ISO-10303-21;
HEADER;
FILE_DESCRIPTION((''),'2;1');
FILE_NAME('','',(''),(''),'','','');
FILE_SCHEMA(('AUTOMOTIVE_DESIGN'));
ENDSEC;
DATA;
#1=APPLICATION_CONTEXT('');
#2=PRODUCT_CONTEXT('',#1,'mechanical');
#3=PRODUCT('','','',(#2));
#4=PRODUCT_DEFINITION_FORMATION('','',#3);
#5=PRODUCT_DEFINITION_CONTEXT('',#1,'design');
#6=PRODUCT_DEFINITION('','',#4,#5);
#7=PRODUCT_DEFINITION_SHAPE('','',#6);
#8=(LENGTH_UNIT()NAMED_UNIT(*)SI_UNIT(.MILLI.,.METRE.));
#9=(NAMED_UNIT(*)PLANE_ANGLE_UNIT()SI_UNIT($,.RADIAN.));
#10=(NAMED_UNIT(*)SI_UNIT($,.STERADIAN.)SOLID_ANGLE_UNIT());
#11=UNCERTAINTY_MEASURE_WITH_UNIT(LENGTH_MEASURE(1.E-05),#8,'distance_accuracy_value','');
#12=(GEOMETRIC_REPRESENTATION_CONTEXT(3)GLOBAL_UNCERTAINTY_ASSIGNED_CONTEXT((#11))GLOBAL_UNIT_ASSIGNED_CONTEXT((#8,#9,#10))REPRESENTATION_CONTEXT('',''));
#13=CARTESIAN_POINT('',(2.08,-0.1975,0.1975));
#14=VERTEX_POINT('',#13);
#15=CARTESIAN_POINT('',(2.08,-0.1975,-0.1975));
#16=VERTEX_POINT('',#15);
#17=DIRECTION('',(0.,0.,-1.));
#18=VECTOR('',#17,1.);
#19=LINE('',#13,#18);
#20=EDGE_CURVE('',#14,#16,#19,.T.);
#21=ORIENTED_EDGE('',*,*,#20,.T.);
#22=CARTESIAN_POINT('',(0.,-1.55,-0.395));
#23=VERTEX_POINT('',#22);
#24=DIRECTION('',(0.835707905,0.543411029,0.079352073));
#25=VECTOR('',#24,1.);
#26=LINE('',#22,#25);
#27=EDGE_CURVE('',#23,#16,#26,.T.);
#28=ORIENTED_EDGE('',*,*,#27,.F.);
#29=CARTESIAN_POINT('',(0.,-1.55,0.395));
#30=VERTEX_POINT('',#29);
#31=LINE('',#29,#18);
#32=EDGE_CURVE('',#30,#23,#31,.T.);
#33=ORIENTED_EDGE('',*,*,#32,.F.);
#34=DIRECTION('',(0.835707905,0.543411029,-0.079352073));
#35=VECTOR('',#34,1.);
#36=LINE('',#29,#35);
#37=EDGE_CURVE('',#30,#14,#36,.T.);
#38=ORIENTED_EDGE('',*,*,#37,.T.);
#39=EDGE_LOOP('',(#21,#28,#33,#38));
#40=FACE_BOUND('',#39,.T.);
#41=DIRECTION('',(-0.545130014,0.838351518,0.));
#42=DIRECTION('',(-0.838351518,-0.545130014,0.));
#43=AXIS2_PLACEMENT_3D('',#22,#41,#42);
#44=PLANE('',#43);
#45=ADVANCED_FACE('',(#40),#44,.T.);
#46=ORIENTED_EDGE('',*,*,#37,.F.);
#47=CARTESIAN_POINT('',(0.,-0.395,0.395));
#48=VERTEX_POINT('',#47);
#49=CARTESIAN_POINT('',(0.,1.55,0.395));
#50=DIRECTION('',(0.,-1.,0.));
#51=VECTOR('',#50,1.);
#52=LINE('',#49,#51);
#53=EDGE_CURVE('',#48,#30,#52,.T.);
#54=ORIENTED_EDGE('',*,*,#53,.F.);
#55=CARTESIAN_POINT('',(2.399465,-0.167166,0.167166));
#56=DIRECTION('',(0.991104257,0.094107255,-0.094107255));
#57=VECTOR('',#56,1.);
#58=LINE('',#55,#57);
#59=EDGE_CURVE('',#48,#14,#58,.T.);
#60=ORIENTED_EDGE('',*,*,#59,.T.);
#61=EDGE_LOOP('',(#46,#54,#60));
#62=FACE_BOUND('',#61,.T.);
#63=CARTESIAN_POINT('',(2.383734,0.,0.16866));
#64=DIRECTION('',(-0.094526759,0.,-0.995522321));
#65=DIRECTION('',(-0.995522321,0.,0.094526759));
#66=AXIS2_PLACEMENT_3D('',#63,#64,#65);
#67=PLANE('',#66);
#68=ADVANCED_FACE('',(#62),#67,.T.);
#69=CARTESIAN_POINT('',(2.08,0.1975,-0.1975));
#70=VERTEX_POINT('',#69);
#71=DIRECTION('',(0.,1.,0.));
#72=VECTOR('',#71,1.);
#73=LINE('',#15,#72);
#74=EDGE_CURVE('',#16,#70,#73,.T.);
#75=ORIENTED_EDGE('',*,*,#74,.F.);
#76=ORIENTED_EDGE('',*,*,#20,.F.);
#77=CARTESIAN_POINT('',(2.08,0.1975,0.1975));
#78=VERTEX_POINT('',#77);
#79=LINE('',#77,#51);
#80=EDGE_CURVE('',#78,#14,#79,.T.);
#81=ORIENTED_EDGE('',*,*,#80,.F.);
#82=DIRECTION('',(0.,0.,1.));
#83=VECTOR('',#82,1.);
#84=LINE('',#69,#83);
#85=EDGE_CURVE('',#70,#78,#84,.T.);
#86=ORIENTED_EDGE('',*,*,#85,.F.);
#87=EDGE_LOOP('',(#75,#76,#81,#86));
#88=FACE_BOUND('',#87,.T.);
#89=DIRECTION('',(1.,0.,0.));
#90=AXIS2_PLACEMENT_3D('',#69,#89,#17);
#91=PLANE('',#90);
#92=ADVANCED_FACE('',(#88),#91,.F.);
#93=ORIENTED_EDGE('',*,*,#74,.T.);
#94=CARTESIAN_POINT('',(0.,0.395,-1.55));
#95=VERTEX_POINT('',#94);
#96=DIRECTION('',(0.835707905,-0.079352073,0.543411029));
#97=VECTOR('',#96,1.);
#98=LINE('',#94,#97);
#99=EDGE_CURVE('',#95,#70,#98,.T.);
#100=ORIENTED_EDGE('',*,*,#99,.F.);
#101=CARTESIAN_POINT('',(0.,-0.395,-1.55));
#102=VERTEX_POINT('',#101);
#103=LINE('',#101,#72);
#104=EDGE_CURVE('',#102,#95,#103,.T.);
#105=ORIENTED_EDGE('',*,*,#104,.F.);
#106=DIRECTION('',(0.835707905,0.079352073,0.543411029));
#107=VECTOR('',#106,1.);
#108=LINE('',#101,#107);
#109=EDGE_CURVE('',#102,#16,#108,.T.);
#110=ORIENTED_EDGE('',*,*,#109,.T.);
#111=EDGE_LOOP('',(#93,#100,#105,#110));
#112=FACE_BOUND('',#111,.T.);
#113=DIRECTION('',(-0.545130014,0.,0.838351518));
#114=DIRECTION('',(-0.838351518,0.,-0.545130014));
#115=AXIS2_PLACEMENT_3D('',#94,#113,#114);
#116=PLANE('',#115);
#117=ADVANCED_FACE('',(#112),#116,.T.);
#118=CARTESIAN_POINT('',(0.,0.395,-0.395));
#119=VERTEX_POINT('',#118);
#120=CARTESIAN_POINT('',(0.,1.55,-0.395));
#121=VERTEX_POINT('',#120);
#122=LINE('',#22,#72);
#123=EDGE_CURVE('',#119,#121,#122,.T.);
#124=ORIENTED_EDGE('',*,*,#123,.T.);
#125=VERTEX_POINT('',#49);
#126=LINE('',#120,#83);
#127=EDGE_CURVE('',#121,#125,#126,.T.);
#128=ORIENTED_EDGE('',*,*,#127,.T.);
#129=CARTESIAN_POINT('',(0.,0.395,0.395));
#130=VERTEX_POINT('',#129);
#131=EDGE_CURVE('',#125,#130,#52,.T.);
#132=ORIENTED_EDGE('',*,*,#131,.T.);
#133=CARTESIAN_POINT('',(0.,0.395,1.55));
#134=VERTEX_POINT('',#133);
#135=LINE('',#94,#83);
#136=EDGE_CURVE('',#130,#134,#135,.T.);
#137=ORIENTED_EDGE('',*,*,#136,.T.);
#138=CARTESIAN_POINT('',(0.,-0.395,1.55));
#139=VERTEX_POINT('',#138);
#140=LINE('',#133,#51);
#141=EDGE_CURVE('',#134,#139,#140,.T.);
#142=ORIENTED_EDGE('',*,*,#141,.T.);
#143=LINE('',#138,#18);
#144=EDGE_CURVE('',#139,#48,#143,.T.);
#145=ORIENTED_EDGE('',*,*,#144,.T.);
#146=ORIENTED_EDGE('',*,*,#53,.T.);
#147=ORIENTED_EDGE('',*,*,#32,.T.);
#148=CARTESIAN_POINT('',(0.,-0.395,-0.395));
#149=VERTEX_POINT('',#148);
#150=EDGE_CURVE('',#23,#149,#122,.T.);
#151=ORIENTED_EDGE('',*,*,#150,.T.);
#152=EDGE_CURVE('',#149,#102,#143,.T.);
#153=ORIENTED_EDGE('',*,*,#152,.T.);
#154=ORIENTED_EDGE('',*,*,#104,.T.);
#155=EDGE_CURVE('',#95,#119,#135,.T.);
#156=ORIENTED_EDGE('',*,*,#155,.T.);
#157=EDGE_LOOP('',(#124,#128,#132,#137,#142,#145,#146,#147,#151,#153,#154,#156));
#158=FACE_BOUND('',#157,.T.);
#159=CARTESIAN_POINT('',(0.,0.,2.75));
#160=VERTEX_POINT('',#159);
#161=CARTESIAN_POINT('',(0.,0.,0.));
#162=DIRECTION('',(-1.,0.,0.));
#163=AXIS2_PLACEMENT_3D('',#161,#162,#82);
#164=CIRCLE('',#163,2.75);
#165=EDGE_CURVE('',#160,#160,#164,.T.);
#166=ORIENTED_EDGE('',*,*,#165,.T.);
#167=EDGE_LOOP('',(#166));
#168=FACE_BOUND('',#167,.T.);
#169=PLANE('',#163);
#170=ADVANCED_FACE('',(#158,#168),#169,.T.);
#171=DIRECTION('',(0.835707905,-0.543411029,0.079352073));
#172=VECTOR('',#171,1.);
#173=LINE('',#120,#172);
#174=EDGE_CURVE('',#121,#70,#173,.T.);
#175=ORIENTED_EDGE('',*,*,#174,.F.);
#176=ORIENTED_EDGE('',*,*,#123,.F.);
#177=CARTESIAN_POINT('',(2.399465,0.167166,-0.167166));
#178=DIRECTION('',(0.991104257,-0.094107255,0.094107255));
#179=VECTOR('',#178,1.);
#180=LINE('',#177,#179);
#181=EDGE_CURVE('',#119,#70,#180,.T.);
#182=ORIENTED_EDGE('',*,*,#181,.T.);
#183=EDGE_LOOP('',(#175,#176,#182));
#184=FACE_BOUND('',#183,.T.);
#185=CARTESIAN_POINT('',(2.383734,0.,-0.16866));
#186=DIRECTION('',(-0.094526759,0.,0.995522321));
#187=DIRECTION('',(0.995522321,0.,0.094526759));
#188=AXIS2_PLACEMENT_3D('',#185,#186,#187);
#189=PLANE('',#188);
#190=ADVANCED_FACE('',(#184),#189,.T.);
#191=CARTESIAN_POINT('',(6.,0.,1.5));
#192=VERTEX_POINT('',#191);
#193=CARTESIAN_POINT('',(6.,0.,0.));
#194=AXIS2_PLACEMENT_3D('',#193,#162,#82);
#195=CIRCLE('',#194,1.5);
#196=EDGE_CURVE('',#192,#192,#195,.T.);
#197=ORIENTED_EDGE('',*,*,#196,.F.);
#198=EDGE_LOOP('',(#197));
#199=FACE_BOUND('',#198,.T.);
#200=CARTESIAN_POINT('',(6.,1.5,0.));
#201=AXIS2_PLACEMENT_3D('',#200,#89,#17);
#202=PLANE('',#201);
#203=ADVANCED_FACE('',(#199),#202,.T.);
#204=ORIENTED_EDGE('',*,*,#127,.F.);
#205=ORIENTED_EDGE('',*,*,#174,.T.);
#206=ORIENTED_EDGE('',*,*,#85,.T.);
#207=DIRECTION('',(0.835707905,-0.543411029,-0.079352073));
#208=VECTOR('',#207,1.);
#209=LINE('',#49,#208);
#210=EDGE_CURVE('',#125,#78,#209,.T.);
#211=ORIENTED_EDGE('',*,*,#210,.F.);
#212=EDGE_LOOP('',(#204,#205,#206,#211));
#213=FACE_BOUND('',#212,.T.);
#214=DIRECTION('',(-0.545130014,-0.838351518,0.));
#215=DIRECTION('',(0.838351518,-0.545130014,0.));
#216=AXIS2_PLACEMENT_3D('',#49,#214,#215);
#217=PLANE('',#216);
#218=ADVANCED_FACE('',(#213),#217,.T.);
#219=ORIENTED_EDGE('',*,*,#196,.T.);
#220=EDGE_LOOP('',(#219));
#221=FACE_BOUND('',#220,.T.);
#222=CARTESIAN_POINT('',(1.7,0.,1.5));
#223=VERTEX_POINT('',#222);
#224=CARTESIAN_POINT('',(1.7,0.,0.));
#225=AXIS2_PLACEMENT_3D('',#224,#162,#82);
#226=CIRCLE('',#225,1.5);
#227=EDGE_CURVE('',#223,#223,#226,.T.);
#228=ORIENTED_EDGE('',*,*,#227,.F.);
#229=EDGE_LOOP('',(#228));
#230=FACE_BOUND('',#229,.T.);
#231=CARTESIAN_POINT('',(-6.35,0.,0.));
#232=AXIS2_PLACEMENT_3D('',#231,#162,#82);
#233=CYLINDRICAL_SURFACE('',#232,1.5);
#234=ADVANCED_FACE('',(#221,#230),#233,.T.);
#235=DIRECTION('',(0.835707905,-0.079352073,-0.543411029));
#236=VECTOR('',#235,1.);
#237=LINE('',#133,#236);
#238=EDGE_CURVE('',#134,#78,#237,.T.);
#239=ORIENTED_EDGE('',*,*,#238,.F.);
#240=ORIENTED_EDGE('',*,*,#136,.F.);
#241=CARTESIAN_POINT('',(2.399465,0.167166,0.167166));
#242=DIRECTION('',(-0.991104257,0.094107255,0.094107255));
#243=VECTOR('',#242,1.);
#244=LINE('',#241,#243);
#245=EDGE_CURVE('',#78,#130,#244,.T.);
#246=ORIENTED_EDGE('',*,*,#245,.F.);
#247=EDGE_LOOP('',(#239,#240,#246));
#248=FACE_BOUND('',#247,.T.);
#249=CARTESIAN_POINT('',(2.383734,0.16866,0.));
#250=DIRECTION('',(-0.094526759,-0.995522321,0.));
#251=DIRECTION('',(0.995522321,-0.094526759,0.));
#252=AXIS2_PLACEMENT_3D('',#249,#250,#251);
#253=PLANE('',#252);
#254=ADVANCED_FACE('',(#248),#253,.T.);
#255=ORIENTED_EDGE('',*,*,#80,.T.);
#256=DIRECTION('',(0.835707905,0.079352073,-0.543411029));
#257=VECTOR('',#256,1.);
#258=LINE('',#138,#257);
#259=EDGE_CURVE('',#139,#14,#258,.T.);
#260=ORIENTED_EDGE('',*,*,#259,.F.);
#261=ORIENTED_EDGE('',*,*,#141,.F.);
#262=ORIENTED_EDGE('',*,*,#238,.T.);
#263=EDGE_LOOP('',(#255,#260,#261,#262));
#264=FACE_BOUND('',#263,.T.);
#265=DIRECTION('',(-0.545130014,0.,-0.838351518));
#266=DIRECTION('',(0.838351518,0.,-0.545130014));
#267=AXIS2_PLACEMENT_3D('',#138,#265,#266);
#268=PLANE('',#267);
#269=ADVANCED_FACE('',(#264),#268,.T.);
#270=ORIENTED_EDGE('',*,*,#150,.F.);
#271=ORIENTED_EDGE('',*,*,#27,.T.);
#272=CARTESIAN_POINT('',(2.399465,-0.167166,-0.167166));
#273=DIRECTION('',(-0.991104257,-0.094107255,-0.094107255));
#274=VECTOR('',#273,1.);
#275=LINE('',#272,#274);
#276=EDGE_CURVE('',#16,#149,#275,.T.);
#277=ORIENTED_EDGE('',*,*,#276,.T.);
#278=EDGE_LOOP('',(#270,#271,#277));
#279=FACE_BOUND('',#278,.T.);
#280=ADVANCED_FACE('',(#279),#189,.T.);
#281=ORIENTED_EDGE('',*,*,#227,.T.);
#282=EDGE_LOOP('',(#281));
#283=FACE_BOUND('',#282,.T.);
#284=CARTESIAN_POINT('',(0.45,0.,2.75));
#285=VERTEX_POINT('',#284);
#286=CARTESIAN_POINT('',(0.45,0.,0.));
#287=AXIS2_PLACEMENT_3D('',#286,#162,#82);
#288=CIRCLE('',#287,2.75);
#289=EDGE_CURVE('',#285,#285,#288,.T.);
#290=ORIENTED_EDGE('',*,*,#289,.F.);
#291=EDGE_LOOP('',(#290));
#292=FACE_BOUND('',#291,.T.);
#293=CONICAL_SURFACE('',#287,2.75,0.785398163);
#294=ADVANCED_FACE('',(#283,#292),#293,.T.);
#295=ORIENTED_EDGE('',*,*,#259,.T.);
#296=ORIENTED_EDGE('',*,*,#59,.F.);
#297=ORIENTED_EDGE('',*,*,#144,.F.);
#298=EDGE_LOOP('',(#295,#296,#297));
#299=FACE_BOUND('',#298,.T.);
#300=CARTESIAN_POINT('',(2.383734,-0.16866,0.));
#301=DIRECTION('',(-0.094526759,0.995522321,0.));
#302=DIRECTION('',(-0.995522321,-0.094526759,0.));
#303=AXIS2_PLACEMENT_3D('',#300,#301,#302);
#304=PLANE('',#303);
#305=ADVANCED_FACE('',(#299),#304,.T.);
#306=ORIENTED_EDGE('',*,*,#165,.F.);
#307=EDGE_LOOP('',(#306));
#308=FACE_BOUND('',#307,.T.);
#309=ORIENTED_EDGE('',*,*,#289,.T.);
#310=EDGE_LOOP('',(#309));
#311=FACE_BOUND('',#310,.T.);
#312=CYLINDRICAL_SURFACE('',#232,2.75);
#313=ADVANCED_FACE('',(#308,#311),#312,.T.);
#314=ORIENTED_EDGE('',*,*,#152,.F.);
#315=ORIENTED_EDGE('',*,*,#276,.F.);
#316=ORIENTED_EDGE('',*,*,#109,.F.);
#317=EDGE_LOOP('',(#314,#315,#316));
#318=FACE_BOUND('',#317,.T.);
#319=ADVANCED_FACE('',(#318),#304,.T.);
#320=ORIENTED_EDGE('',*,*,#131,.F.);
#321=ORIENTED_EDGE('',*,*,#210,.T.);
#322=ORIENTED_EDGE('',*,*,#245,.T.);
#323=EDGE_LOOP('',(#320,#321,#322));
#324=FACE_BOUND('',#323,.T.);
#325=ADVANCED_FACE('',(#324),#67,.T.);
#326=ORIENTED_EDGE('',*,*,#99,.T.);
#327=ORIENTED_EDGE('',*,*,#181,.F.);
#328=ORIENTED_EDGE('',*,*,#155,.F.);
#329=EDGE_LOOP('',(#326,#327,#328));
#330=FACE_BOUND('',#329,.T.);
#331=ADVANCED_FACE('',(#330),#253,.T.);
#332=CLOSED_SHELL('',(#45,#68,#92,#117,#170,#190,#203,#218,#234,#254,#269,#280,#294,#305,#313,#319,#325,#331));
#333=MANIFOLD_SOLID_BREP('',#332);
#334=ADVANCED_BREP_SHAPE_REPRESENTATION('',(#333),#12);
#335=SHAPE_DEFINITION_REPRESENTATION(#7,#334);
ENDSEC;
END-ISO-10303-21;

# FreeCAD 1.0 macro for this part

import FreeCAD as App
import Part
import Sketcher

V = App.Vector
Q = App.Units.Quantity


def add_polygon(sketch, points):
    """Adds a closed chain of lines whose ends are joined by coincident constraints."""
    first, n = sketch.GeometryCount, len(points)
    for a, b in zip(points, points[1:] + points[:1]):
        sketch.addGeometry(Part.LineSegment(App.Vector(*a, 0), App.Vector(*b, 0)), False)
    for i in range(n):
        sketch.addConstraint(Sketcher.Constraint("Coincident", first + i, 2, first + (i + 1) % n, 1))

doc = App.newDocument("Part")
body = doc.addObject("PartDesign::Body", "Body")

sketch1 = body.newObject("Sketcher::SketchObject", "Sketch")
sketch1.AttachmentSupport = (doc.getObject("XY_Plane"), [""])
sketch1.MapMode = "FlatFace"
add_polygon(sketch1, [(0, 2.75), (0, 0), (6, 0), (6, 1.5), (1.7, 1.5), (0.45, 2.75)])
sketch1.addConstraint([
    Sketcher.Constraint("Vertical", 0),
    Sketcher.Constraint("Horizontal", 1),
    Sketcher.Constraint("Vertical", 2),
    Sketcher.Constraint("Horizontal", 3),
    Sketcher.Constraint("Horizontal", 5),
    Sketcher.Constraint("Coincident", 0, 2, -1, 1),
    Sketcher.Constraint("DistanceX", 1, 1, 1, 2, 6.0),
    Sketcher.Constraint("Angle", 4, Q("135 deg")),
    Sketcher.Constraint("DistanceX", 3, 2, 3, 1, 4.3),
    Sketcher.Constraint("DistanceY", 2, 1, 2, 2, 1.5),
    Sketcher.Constraint("DistanceX", 5, 2, 5, 1, 0.45),
])
revolution = body.newObject("PartDesign::Revolution", "Revolution")
revolution.Profile = sketch1
revolution.ReferenceAxis = (sketch1, ["H_Axis"])
revolution.Angle = 360

sketch2 = body.newObject("Sketcher::SketchObject", "Sketch001")
sketch2.AttachmentSupport = (doc.getObject("YZ_Plane"), [""])
sketch2.MapMode = "FlatFace"
add_polygon(sketch2, [(1.6, -0.4), (-1.6, -0.4), (-1.6, 0.4), (1.6, 0.4)])
sketch2.addConstraint([
    Sketcher.Constraint("Horizontal", 0),
    Sketcher.Constraint("Vertical", 1),
    Sketcher.Constraint("Horizontal", 2),
    Sketcher.Constraint("Vertical", 3),
    Sketcher.Constraint("Symmetric", 0, 2, 2, 2, -1, 1),
    Sketcher.Constraint("DistanceX", 0, 2, 0, 1, 3.1),
    Sketcher.Constraint("DistanceY", 1, 1, 1, 2, 0.79),
])

sketch3 = body.newObject("Sketcher::SketchObject", "Sketch002")
sketch3.AttachmentSupport = (doc.getObject("YZ_Plane"), [""])
sketch3.MapMode = "FlatFace"
sketch3.AttachmentOffset = App.Placement(V(0, 0, 2.08), App.Rotation())
add_polygon(sketch3, [(0.2, -0.2), (-0.2, -0.2), (-0.2, 0.2), (0.2, 0.2)])
sketch3.addConstraint([
    Sketcher.Constraint("Horizontal", 0),
    Sketcher.Constraint("Vertical", 1),
    Sketcher.Constraint("Horizontal", 2),
    Sketcher.Constraint("Vertical", 3),
    Sketcher.Constraint("Symmetric", 0, 2, 2, 2, -1, 1),
    Sketcher.Constraint("Equal", 2, 1),
    Sketcher.Constraint("DistanceX", 0, 2, 0, 1, 0.395),
])

subtractiveloft = body.newObject("PartDesign::SubtractiveLoft", "SubtractiveLoft")
subtractiveloft.Profile = sketch2
subtractiveloft.Sections = [sketch3]
doc.recompute()

polarpattern = body.newObject("PartDesign::PolarPattern", "PolarPattern")
polarpattern.Originals = [subtractiveloft]
polarpattern.Axis = (doc.getObject("X_Axis"), [""])
polarpattern.Angle = 90
polarpattern.Occurrences = 2
body.Tip = polarpattern

doc.recompute()
